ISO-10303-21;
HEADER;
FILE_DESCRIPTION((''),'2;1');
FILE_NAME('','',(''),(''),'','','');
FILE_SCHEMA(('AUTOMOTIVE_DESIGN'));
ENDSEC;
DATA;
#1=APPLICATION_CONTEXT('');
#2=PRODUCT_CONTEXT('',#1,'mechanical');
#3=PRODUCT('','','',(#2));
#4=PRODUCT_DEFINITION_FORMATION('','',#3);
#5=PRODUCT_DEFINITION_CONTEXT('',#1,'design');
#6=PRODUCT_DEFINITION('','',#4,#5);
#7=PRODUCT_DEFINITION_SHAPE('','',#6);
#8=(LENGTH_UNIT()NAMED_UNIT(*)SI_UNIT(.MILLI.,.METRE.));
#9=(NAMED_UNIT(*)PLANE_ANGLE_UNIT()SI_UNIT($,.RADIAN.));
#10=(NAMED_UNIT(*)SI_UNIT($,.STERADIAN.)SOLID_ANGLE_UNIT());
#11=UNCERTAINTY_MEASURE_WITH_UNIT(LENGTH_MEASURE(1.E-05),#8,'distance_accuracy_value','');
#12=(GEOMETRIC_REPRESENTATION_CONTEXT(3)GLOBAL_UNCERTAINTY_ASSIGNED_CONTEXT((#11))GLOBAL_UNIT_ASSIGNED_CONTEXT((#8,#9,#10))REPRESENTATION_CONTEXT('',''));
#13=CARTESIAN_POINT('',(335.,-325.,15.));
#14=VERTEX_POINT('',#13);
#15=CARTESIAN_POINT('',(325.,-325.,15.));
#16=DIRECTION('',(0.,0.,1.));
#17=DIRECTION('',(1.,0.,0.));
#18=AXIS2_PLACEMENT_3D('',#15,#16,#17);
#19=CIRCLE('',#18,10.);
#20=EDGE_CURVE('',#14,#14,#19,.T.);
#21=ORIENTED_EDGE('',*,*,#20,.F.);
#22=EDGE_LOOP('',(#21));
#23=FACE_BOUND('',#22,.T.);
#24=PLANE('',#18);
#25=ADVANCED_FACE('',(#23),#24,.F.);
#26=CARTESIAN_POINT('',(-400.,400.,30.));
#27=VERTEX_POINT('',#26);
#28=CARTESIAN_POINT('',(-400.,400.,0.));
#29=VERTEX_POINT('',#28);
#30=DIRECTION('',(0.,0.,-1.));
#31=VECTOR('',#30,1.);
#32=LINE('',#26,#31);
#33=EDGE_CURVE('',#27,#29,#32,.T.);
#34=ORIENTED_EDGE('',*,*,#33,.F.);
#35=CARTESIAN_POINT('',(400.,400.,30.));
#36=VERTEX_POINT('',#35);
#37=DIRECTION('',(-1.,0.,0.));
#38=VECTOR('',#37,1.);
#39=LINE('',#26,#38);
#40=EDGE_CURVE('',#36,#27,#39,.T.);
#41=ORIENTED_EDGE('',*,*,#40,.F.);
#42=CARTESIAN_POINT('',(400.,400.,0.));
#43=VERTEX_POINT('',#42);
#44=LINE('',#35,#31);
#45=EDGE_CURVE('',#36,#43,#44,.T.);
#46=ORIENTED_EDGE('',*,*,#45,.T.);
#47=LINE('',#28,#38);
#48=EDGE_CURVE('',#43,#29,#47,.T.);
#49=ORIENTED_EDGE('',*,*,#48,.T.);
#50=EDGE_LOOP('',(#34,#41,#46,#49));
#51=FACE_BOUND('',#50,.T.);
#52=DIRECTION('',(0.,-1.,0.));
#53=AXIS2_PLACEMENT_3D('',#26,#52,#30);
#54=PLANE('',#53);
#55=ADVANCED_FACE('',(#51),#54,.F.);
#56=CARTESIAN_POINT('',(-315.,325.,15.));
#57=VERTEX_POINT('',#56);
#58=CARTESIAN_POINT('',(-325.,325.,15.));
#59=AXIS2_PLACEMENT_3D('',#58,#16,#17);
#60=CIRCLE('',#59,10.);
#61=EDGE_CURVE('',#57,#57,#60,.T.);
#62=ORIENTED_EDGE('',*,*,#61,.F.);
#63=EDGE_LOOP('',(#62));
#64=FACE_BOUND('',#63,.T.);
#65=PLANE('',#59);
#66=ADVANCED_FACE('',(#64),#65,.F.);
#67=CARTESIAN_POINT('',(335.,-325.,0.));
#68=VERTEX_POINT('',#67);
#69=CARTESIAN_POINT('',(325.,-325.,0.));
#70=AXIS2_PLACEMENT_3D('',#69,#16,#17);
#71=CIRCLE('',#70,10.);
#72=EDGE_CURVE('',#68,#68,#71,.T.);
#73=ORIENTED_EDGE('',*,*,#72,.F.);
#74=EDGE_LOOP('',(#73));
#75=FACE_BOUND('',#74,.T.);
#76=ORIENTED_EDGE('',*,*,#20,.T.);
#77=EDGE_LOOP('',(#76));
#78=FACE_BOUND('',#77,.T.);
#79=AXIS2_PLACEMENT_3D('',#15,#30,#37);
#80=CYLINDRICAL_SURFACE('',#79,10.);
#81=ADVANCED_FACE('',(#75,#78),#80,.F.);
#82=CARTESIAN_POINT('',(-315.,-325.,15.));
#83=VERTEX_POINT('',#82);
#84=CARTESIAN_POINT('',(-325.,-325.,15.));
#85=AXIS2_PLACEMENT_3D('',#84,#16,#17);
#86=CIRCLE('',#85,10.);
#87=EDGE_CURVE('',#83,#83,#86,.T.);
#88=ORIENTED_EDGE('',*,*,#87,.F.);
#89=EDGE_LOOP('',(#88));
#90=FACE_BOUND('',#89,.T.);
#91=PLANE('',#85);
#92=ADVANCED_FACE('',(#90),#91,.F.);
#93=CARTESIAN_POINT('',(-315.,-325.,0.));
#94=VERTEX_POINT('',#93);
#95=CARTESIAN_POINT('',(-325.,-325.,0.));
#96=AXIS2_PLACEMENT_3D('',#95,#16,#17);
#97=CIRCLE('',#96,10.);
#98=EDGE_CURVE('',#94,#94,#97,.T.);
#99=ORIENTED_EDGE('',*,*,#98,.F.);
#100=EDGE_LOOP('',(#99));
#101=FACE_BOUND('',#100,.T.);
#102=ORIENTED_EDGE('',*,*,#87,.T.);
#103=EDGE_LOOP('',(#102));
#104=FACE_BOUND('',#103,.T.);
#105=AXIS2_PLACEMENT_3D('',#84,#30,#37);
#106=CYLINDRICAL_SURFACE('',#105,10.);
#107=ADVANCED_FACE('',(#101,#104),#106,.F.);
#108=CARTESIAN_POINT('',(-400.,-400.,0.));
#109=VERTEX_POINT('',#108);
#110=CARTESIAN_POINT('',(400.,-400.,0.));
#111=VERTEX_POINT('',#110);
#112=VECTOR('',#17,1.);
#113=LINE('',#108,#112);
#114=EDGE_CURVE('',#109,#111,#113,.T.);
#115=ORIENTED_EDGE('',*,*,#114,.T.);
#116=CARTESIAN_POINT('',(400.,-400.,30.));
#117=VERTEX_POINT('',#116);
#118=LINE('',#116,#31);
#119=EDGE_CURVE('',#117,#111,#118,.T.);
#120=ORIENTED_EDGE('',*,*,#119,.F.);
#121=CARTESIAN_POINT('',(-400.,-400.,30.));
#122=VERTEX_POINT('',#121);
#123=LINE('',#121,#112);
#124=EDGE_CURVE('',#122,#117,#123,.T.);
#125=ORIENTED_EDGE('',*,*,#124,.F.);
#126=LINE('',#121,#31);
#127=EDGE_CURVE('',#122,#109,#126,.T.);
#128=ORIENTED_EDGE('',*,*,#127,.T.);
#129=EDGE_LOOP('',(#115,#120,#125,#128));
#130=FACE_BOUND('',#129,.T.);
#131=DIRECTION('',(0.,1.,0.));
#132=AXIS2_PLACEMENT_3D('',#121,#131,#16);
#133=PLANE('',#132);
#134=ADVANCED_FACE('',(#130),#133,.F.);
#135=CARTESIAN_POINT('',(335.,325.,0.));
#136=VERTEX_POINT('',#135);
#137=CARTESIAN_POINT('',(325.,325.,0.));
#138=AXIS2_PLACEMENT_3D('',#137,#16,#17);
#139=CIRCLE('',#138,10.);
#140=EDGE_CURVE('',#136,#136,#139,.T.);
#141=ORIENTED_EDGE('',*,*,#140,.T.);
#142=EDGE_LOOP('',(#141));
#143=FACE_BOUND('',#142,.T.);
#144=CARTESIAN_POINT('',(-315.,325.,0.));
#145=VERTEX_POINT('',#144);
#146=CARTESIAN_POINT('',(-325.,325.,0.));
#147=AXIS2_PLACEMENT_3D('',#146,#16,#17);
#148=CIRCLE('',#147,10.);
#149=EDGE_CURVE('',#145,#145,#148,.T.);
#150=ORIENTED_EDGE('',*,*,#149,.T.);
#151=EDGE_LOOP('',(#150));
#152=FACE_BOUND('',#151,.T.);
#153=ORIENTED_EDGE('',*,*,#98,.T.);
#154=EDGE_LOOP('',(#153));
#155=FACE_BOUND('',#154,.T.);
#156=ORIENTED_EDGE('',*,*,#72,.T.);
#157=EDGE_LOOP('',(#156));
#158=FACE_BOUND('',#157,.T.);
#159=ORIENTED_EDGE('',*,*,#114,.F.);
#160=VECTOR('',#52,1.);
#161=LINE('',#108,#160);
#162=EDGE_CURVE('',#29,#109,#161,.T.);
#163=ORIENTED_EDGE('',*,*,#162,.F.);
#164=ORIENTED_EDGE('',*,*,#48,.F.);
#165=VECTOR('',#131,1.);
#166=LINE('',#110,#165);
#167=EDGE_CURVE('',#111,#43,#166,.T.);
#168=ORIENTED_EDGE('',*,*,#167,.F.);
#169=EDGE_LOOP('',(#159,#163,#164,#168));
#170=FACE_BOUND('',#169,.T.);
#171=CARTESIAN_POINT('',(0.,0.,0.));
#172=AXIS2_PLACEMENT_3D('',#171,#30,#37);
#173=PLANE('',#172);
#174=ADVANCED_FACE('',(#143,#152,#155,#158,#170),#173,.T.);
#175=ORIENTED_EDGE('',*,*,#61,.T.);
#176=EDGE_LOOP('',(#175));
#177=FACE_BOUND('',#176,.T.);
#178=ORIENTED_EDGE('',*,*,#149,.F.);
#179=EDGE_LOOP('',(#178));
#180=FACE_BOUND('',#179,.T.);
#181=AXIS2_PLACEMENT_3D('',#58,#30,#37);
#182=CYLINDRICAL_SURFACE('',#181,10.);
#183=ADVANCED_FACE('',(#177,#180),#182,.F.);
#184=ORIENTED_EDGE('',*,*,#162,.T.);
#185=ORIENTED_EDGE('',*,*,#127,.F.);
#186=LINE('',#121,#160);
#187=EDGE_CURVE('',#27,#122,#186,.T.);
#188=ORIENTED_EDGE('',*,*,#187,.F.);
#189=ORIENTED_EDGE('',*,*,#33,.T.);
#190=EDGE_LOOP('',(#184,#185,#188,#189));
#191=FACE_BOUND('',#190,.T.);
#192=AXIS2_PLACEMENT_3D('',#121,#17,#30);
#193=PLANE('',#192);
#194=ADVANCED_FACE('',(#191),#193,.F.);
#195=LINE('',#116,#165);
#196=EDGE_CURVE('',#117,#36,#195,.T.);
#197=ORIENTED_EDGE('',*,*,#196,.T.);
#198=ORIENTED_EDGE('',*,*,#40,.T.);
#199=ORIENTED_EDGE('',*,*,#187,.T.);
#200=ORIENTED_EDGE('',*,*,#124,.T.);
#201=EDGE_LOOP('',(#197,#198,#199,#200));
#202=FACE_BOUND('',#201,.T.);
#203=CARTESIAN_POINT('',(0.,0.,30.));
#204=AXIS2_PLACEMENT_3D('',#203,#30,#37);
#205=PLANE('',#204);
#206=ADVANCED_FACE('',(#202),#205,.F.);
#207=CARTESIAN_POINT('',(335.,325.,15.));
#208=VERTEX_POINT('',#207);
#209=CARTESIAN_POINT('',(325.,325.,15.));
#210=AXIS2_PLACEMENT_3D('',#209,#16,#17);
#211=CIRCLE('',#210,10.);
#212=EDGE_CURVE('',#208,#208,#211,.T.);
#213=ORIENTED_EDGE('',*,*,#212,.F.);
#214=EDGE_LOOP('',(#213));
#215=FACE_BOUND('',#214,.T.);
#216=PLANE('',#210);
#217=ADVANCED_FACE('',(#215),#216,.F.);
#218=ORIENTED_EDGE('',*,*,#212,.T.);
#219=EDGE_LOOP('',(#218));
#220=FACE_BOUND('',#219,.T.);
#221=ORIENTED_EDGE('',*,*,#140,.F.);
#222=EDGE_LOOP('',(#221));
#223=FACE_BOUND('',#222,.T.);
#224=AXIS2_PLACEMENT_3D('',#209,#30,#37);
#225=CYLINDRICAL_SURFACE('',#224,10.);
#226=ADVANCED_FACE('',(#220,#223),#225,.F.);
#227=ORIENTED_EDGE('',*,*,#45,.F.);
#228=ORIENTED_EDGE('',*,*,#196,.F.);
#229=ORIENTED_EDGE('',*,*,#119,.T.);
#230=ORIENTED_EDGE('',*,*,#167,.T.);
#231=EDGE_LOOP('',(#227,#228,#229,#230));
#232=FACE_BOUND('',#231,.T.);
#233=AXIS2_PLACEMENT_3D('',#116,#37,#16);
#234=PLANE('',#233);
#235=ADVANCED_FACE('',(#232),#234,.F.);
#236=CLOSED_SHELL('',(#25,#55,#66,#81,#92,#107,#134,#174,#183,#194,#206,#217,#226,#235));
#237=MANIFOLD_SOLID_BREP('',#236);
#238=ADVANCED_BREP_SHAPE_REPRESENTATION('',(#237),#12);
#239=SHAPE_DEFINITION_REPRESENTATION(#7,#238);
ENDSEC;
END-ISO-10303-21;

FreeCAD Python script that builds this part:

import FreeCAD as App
import Part
import Sketcher
from FreeCAD import Vector


def add_polygon(sketch, points):
    """Adds a closed chain of lines whose ends are joined by coincident constraints."""
    first, n = sketch.GeometryCount, len(points)
    for a, b in zip(points, points[1:] + points[:1]):
        sketch.addGeometry(Part.LineSegment(App.Vector(*a, 0), App.Vector(*b, 0)), False)
    for i in range(n):
        sketch.addConstraint(Sketcher.Constraint("Coincident", first + i, 2, first + (i + 1) % n, 1))

doc = App.newDocument("Part")
body = doc.addObject("PartDesign::Body", "Body")

# Sketch on XY plane
sketch1 = doc.addObject("Sketcher::SketchObject", "Sketch")
body.addObject(sketch1)
sketch1.AttachmentSupport = (doc.XY_Plane, [""])
sketch1.MapMode = "FlatFace"
add_polygon(sketch1, [(-400, 400), (-400, -400), (400, -400), (400, 400)])  # lines 0-3
sketch1.addConstraint([
    Sketcher.Constraint("Vertical", 0),
    Sketcher.Constraint("Horizontal", 1),
    Sketcher.Constraint("Vertical", 2),
    Sketcher.Constraint("Horizontal", 3),
    Sketcher.Constraint("Symmetric", 0, 2, 2, 2, -1, 1),
    Sketcher.Constraint("Equal", 3, 0),
    Sketcher.Constraint("DistanceX", 1, 1, 1, 2, 800.0),
])
pad1 = doc.addObject("PartDesign::Pad", "Pad")
body.addObject(pad1)
pad1.Profile = sketch1
pad1.Length = 30

# Sketch on XY plane
sketch2 = doc.addObject("Sketcher::SketchObject", "Sketch001")
body.addObject(sketch2)
sketch2.AttachmentSupport = (doc.XY_Plane, [""])
sketch2.MapMode = "FlatFace"
sketch2.addGeometry([
    Part.Circle(Vector(-325, -325, 0), Vector(0, 0, 1), 10),
    Part.Circle(Vector(325, -325, 0), Vector(0, 0, 1), 10),
    Part.Circle(Vector(-325, 325, 0), Vector(0, 0, 1), 10),
    Part.Circle(Vector(325, 325, 0), Vector(0, 0, 1), 10),
], False)
sketch2.addConstraint([
    Sketcher.Constraint("Equal", 0, 1),
    Sketcher.Constraint("Equal", 1, 2),
    Sketcher.Constraint("Equal", 2, 3),
    Sketcher.Constraint("Symmetric", 1, 3, 2, 3, -1, 1),
    Sketcher.Constraint("Symmetric", 0, 3, 3, 3, -1, 1),
    Sketcher.Constraint("Symmetric", 0, 3, 1, 3, -2),
    Sketcher.Constraint("Diameter", 0, 20.0),
    Sketcher.Constraint("DistanceX", 0, 3, -1, 1, 325.0),
    Sketcher.Constraint("DistanceY", 0, 3, -1, 1, 325.0),
])
pocket1 = doc.addObject("PartDesign::Pocket", "Pocket")
body.addObject(pocket1)
pocket1.Profile = sketch2
pocket1.Length = 15
pocket1.Reversed = True

doc.recompute()
